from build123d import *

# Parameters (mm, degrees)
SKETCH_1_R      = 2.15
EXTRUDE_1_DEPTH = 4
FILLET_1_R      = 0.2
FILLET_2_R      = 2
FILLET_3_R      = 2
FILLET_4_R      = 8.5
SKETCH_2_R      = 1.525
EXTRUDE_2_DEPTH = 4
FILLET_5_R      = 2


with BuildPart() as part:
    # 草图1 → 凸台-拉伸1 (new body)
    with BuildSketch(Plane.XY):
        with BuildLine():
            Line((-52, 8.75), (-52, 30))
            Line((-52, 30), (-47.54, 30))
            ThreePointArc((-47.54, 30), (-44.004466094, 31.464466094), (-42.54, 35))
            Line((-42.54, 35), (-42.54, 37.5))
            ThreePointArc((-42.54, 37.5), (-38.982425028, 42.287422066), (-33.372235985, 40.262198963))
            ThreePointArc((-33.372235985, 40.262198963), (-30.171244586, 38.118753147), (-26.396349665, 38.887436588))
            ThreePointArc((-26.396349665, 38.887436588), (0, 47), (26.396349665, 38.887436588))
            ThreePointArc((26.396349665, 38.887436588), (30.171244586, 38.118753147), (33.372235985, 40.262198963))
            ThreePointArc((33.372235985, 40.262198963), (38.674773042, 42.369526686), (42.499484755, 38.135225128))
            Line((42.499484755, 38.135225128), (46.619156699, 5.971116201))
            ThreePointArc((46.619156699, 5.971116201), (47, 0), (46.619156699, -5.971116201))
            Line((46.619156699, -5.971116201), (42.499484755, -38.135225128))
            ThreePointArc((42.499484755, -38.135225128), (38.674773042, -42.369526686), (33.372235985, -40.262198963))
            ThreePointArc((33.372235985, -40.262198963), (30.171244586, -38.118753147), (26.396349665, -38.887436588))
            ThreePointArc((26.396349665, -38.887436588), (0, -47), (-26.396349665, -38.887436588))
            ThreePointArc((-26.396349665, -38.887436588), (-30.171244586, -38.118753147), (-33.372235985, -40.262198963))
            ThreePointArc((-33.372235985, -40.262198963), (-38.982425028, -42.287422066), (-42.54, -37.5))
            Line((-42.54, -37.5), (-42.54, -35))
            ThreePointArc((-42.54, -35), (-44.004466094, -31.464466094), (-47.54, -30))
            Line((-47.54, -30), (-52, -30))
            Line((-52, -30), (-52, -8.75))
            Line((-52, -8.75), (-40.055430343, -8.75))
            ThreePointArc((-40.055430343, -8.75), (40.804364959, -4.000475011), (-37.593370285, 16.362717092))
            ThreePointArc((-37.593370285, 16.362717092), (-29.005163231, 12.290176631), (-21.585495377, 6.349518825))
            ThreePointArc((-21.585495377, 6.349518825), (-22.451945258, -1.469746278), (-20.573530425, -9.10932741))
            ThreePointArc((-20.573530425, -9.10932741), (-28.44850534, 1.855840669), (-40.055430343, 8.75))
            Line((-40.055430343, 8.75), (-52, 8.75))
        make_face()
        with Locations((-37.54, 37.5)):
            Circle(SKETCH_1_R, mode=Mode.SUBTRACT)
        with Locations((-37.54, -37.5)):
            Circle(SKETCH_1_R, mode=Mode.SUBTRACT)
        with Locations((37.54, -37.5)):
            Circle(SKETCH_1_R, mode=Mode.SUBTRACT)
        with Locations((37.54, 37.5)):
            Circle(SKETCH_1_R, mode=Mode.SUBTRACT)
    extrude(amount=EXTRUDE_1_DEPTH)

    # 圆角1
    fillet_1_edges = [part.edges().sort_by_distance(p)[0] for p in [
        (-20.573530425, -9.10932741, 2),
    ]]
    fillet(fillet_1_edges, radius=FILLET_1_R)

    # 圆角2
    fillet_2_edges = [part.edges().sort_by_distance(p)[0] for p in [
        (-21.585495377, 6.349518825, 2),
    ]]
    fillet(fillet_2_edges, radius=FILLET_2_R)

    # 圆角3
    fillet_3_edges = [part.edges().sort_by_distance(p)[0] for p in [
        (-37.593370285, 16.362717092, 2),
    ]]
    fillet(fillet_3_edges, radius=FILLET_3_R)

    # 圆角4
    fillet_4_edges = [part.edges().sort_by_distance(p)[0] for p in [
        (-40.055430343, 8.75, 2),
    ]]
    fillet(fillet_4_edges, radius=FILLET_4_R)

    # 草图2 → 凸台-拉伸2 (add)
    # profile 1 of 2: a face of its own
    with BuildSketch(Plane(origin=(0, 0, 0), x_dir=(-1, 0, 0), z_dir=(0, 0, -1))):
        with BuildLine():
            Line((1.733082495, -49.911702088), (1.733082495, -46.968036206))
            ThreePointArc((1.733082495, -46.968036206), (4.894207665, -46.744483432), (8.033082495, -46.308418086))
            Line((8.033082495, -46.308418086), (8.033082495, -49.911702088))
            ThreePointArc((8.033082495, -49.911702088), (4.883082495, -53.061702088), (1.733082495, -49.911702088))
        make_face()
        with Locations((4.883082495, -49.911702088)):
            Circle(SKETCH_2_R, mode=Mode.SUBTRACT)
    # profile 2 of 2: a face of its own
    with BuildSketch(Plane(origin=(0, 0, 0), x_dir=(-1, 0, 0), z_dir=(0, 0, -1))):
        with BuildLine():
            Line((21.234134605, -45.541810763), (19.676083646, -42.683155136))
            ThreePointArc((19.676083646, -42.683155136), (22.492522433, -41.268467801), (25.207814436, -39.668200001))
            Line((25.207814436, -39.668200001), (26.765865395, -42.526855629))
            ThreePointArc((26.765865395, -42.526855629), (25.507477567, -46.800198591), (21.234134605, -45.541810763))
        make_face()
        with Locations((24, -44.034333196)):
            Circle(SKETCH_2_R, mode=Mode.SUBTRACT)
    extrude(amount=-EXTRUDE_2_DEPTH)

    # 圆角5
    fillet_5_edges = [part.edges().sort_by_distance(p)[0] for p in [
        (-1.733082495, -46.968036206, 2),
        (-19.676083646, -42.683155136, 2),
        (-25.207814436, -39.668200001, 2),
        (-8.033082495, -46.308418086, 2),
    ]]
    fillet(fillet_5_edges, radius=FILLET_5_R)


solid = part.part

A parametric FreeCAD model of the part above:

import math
import FreeCAD as App
import Part
import Sketcher

V = App.Vector


def edges_at(feature, points):
    """Names of the edges that pass closest to the given points."""
    edges = feature.Shape.Edges
    near = lambda p: min(range(len(edges)), key=lambda i: edges[i].distToShape(Part.Vertex(*p))[0])
    return sorted({f"Edge{near(p) + 1}" for p in points})

doc = App.newDocument("Part")
body = doc.addObject("PartDesign::Body", "Body")

# Sketch on XY plane
sketch1 = doc.addObject("Sketcher::SketchObject", "Sketch")
body.addObject(sketch1)
sketch1.AttachmentSupport = (doc.XY_Plane, [""])
sketch1.MapMode = "FlatFace"
sketch1.addGeometry([
    Part.LineSegment(V(-52, 30, 0), V(-52, 8.8, 0)),  # 0
    Part.LineSegment(V(-52, 8.8, 0), V(-40.1, 8.8, 0)),  # 1
    Part.ArcOfCircle(Part.Circle(V(-50.7, -22.5, 0), V(0, 0, 1), 33), math.radians(24), math.radians(71)),  # 2
    Part.ArcOfCircle(Part.Circle(V(0, 0, 0), V(0, 0, 1), 22.5), math.radians(164), math.radians(204)),  # 3
    Part.ArcOfCircle(Part.Circle(V(-50.7, -22.5, 0), V(0, 0, 1), 41), math.radians(45), math.radians(71)),  # 4
    Part.ArcOfCircle(Part.Circle(V(0, 0, 0), V(0, 0, 1), 41), math.radians(-168), math.radians(156)),  # 5
    Part.LineSegment(V(-40.1, -8.8, 0), V(-52, -8.8, 0)),  # 6
    Part.LineSegment(V(-52, -8.8, 0), V(-52, -30, 0)),  # 7
    Part.LineSegment(V(-52, -30, 0), V(-47.5, -30, 0)),  # 8
    Part.ArcOfCircle(Part.Circle(V(-47.5, -35, 0), V(0, 0, 1), 5), math.radians(0), math.radians(90)),  # 9
    Part.LineSegment(V(-42.5, -35, 0), V(-42.5, -37.5, 0)),  # 10
    Part.ArcOfCircle(Part.Circle(V(-37.5, -37.5, 0), V(0, 0, 1), 5), math.radians(180), math.radians(326)),  # 11
    Part.ArcOfCircle(Part.Circle(V(-29.2, -43, 0), V(0, 0, 1), 5), math.radians(56), math.radians(146)),  # 12
    Part.ArcOfCircle(Part.Circle(V(0, 0, 0), V(0, 0, 1), 47), math.radians(-124), math.radians(-56)),  # 13
    Part.ArcOfCircle(Part.Circle(V(29.2, -43, 0), V(0, 0, 1), 5), math.radians(34), math.radians(124)),  # 14
    Part.ArcOfCircle(Part.Circle(V(37.5, -37.5, 0), V(0, 0, 1), 5), math.radians(-146), math.radians(-7)),  # 15
    Part.LineSegment(V(42.5, -38.1, 0), V(46.6, -6, 0)),  # 16
    Part.ArcOfCircle(Part.Circle(V(0, 0, 0), V(0, 0, 1), 47), math.radians(-7.3), math.radians(7.3)),  # 17
    Part.LineSegment(V(46.6, 6, 0), V(42.5, 38.1, 0)),  # 18
    Part.ArcOfCircle(Part.Circle(V(37.5, 37.5, 0), V(0, 0, 1), 5), math.radians(7), math.radians(146)),  # 19
    Part.ArcOfCircle(Part.Circle(V(29.2, 43, 0), V(0, 0, 1), 5), math.radians(-124), math.radians(-34)),  # 20
    Part.ArcOfCircle(Part.Circle(V(0, 0, 0), V(0, 0, 1), 47), math.radians(56), math.radians(124)),  # 21
    Part.ArcOfCircle(Part.Circle(V(-29.2, 43, 0), V(0, 0, 1), 5), math.radians(-146), math.radians(-56)),  # 22
    Part.ArcOfCircle(Part.Circle(V(-37.5, 37.5, 0), V(0, 0, 1), 5), math.radians(34), math.radians(180)),  # 23
    Part.LineSegment(V(-42.5, 37.5, 0), V(-42.5, 35, 0)),  # 24
    Part.ArcOfCircle(Part.Circle(V(-47.5, 35, 0), V(0, 0, 1), 5), math.radians(-90), math.radians(0)),  # 25
    Part.LineSegment(V(-47.5, 30, 0), V(-52, 30, 0)),  # 26
    Part.Circle(V(37.5, -37.5, 0), V(0, 0, 1), 2.1),  # 27
    Part.Circle(V(-37.5, -37.5, 0), V(0, 0, 1), 2.1),  # 28
    Part.Circle(V(37.5, 37.5, 0), V(0, 0, 1), 2.1),  # 29
    Part.Circle(V(-37.5, 37.5, 0), V(0, 0, 1), 2.1),  # 30
], False)
sketch1.addConstraint([
    Sketcher.Constraint("Coincident", 0, 2, 1, 1),
    Sketcher.Constraint("Coincident", 1, 2, 2, 2),
    Sketcher.Constraint("Tangent", 2, 1, 3, 2),
    Sketcher.Constraint("Coincident", 3, 1, 4, 1),
    Sketcher.Constraint("Coincident", 4, 2, 5, 2),
    Sketcher.Constraint("Coincident", 5, 1, 6, 1),
    Sketcher.Constraint("Coincident", 6, 2, 7, 1),
    Sketcher.Constraint("Coincident", 7, 2, 8, 1),
    Sketcher.Constraint("Tangent", 8, 2, 9, 2),
    Sketcher.Constraint("Tangent", 9, 1, 10, 1),
    Sketcher.Constraint("Tangent", 10, 2, 11, 1),
    Sketcher.Constraint("Tangent", 11, 2, 12, 2),
    Sketcher.Constraint("Tangent", 12, 1, 13, 1),
    Sketcher.Constraint("Tangent", 13, 2, 14, 2),
    Sketcher.Constraint("Tangent", 14, 1, 15, 1),
    Sketcher.Constraint("Tangent", 15, 2, 16, 1),
    Sketcher.Constraint("Tangent", 16, 2, 17, 1),
    Sketcher.Constraint("Tangent", 17, 2, 18, 1),
    Sketcher.Constraint("Tangent", 18, 2, 19, 1),
    Sketcher.Constraint("Tangent", 19, 2, 20, 2),
    Sketcher.Constraint("Tangent", 20, 1, 21, 1),
    Sketcher.Constraint("Tangent", 21, 2, 22, 2),
    Sketcher.Constraint("Tangent", 22, 1, 23, 1),
    Sketcher.Constraint("Tangent", 23, 2, 24, 1),
    Sketcher.Constraint("Tangent", 24, 2, 25, 2),
    Sketcher.Constraint("Tangent", 25, 1, 26, 1),
    Sketcher.Constraint("Coincident", 26, 2, 0, 1),
    Sketcher.Constraint("Vertical", 0),
    Sketcher.Constraint("Horizontal", 1),
    Sketcher.Constraint("Horizontal", 6),
    Sketcher.Constraint("Vertical", 7),
    Sketcher.Constraint("Horizontal", 8),
    Sketcher.Constraint("Vertical", 10),
    Sketcher.Constraint("Vertical", 24),
    Sketcher.Constraint("Horizontal", 26),
    Sketcher.Constraint("Coincident", 3, 3, -1, 1),
    Sketcher.Constraint("Coincident", 5, 3, -1, 1),
    Sketcher.Constraint("Coincident", 13, 3, -1, 1),
    Sketcher.Constraint("Coincident", 17, 3, -1, 1),
    Sketcher.Constraint("Coincident", 21, 3, -1, 1),
    Sketcher.Constraint("Coincident", 4, 3, 2, 3),
    Sketcher.Constraint("Coincident", 27, 3, 15, 3),
    Sketcher.Constraint("Coincident", 28, 3, 11, 3),
    Sketcher.Constraint("Coincident", 29, 3, 19, 3),
    Sketcher.Constraint("Coincident", 30, 3, 23, 3),
    Sketcher.Constraint("Equal", 4, 5),
    Sketcher.Constraint("Equal", 9, 11),
    Sketcher.Constraint("Equal", 11, 12),
    Sketcher.Constraint("Equal", 12, 14),
    Sketcher.Constraint("Equal", 14, 15),
    Sketcher.Constraint("Equal", 13, 17),
    Sketcher.Constraint("Equal", 15, 19),
    Sketcher.Constraint("Equal", 19, 20),
    Sketcher.Constraint("Equal", 17, 21),
    Sketcher.Constraint("Equal", 20, 22),
    Sketcher.Constraint("Equal", 22, 23),
    Sketcher.Constraint("Equal", 23, 25),
    Sketcher.Constraint("Equal", 27, 28),
    Sketcher.Constraint("Equal", 28, 29),
    Sketcher.Constraint("Equal", 29, 30),
    Sketcher.Constraint("Symmetric", 11, 3, 19, 3, -1, 1),
    Sketcher.Constraint("Symmetric", 15, 3, 23, 3, -1, 1),
    Sketcher.Constraint("Symmetric", 11, 3, 15, 3, -2),
    Sketcher.Constraint("Symmetric", 1, 2, 5, 1, -1),
    Sketcher.Constraint("Symmetric", 7, 2, 26, 2, -1),
    Sketcher.Constraint("Radius", 2, 33.0),
    Sketcher.Constraint("Radius", 4, 41.0),
    Sketcher.Constraint("Radius", 9, 5.0),
    Sketcher.Constraint("Radius", 13, 47.0),
    Sketcher.Constraint("Diameter", 27, 4.3),
    Sketcher.Constraint("Radius", 3, 22.5),
    Sketcher.Constraint("DistanceY", 10, 2, 10, 1, 2.5),
    Sketcher.Constraint("DistanceY", 9, 3, -1, 1, 35.0),
    Sketcher.Constraint("DistanceX", 0, 2, -1, 1, 52.0),
    Sketcher.Constraint("DistanceX", 8, 1, 8, 2, 4.46),
    Sketcher.Constraint("DistanceY", 0, 2, 0, 1, 21.25),
])
pad1 = doc.addObject("PartDesign::Pad", "Pad")
body.addObject(pad1)
pad1.Profile = sketch1
pad1.Length = 4
doc.recompute()

fillet = doc.addObject("PartDesign::Fillet", "Fillet")
body.addObject(fillet)
fillet.Base = (pad1, edges_at(pad1, [(-20.574, -9.109, 2)]))
fillet.Radius = 0.2
doc.recompute()

fillet2 = doc.addObject("PartDesign::Fillet", "Fillet001")
body.addObject(fillet2)
fillet2.Base = (fillet, edges_at(fillet, [(-21.585, 6.35, 2)]))
fillet2.Radius = 2
doc.recompute()

fillet3 = doc.addObject("PartDesign::Fillet", "Fillet002")
body.addObject(fillet3)
fillet3.Base = (fillet2, edges_at(fillet2, [(-37.593, 16.363, 2)]))
fillet3.Radius = 2
doc.recompute()

fillet4 = doc.addObject("PartDesign::Fillet", "Fillet003")
body.addObject(fillet4)
fillet4.Base = (fillet3, edges_at(fillet3, [(-40.055, 8.75, 2)]))
fillet4.Radius = 8.5

# Sketch on XY plane
sketch2 = doc.addObject("Sketcher::SketchObject", "Sketch001")
body.addObject(sketch2)
sketch2.AttachmentSupport = (doc.XY_Plane, [""])
sketch2.MapMode = "FlatFace"
sketch2.addGeometry([
    Part.LineSegment(V(-1.7, -47, 0), V(-1.7, -49.9, 0)),  # 0
    Part.ArcOfCircle(Part.Circle(V(-4.9, -49.9, 0), V(0, 0, 1), 3.1), math.radians(180), math.radians(360)),  # 1
    Part.LineSegment(V(-8, -49.9, 0), V(-8, -46.3, 0)),  # 2
    Part.ArcOfCircle(Part.Circle(V(0, 0, 0), V(0, 0, 1), 47), math.radians(-99.84), math.radians(-92.11)),  # 3
    Part.Circle(V(-4.9, -49.9, 0), V(0, 0, 1), 1.5),  # 4
    Part.LineSegment(V(-19.7, -42.7, 0), V(-21.2, -45.5, 0)),  # 5
    Part.ArcOfCircle(Part.Circle(V(-24, -44, 0), V(0, 0, 1), 3.1), math.radians(151), math.radians(331)),  # 6
    Part.LineSegment(V(-26.8, -42.5, 0), V(-25.2, -39.7, 0)),  # 7
    Part.ArcOfCircle(Part.Circle(V(0, 0, 0), V(0, 0, 1), 47), math.radians(-122.43), math.radians(-114.75)),  # 8
    Part.Circle(V(-24, -44, 0), V(0, 0, 1), 1.5),  # 9
], False)
sketch2.addConstraint([
    Sketcher.Constraint("Tangent", 0, 2, 1, 2),
    Sketcher.Constraint("Tangent", 1, 1, 2, 1),
    Sketcher.Constraint("Coincident", 2, 2, 3, 1),
    Sketcher.Constraint("Coincident", 3, 2, 0, 1),
    Sketcher.Constraint("Tangent", 5, 2, 6, 2),
    Sketcher.Constraint("Tangent", 6, 1, 7, 1),
    Sketcher.Constraint("Coincident", 7, 2, 8, 1),
    Sketcher.Constraint("Coincident", 8, 2, 5, 1),
    Sketcher.Constraint("Vertical", 0),
    Sketcher.Constraint("Vertical", 2),
    Sketcher.Constraint("Coincident", 3, 3, -1, 1),
    Sketcher.Constraint("Coincident", 8, 3, -1, 1),
    Sketcher.Constraint("Coincident", 4, 3, 1, 3),
    Sketcher.Constraint("Coincident", 9, 3, 6, 3),
    Sketcher.Constraint("Equal", 1, 6),
    Sketcher.Constraint("Equal", 3, 8),
    Sketcher.Constraint("Equal", 4, 9),
    Sketcher.Constraint("Parallel", 5, 7),
    Sketcher.Constraint("Equal", 5, 7),
    Sketcher.Constraint("Radius", 3, 47.0),
    Sketcher.Constraint("Diameter", 4, 3.05),
    Sketcher.Constraint("Radius", 1, 3.15),
    Sketcher.Constraint("DistanceX", 6, 3, -1, 1, 24.0),
    Sketcher.Constraint("DistanceY", 7, 2, -1, 1, 39.6682),
    Sketcher.Constraint("DistanceY", 1, 3, 8, 3, 49.911702),
    Sketcher.Constraint("DistanceY", 0, 2, 0, 1, 2.943666),
])
pad2 = doc.addObject("PartDesign::Pad", "Pad001")
body.addObject(pad2)
pad2.Profile = sketch2
pad2.Length = 4
doc.recompute()

fillet5 = doc.addObject("PartDesign::Fillet", "Fillet004")
body.addObject(fillet5)
fillet5.Base = (pad2, edges_at(pad2, [
    (-1.733, -46.968, 2),
    (-19.676, -42.683, 2),
    (-25.208, -39.668, 2),
    (-8.033, -46.308, 2),
]))
fillet5.Radius = 2

doc.recompute()
